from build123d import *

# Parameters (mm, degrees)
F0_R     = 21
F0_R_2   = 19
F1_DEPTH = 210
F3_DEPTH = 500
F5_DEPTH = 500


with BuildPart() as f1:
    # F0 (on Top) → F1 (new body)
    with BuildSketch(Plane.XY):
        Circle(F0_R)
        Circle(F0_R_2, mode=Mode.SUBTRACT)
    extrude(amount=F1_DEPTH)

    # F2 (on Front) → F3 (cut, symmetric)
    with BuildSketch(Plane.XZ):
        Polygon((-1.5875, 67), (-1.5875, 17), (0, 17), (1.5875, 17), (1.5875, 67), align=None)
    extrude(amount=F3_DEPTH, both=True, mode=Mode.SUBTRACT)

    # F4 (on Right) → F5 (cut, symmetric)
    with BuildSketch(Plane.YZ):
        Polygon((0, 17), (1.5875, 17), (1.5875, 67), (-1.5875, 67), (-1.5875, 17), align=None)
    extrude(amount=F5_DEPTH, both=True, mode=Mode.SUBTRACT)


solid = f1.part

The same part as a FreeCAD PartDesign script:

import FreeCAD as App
import Part
import Sketcher

doc = App.newDocument("Part")
body = doc.addObject("PartDesign::Body", "Body")

# Sketch on XY plane
sketch1 = body.newObject("Sketcher::SketchObject", "Sketch")
sketch1.AttachmentSupport = (doc.getObject("XY_Plane"), [""])
sketch1.MapMode = "FlatFace"
sketch1.addGeometry(Part.Circle(App.Vector(0, 0, 0), App.Vector(0, 0, 1), 21), False)
sketch1.addGeometry(Part.Circle(App.Vector(0, 0, 0), App.Vector(0, 0, 1), 19), False)
sketch1.addConstraint(Sketcher.Constraint("Coincident", 0, 3, -1, 1))
sketch1.addConstraint(Sketcher.Constraint("Coincident", 1, 3, -1, 1))
sketch1.addConstraint(Sketcher.Constraint("Diameter", 0, 42.0))
sketch1.addConstraint(Sketcher.Constraint("Diameter", 1, 38.0))
pad1 = body.newObject("PartDesign::Pad", "Pad")
pad1.Profile = sketch1
pad1.Length = 210

# Sketch on XZ plane
sketch2 = body.newObject("Sketcher::SketchObject", "Sketch001")
sketch2.AttachmentSupport = (doc.getObject("XZ_Plane"), [""])
sketch2.MapMode = "FlatFace"
sketch2.addGeometry(Part.LineSegment(App.Vector(-1.6, 67, 0), App.Vector(-1.6, 17, 0)), False)
sketch2.addGeometry(Part.LineSegment(App.Vector(-1.6, 17, 0), App.Vector(1.6, 17, 0)), False)
sketch2.addGeometry(Part.LineSegment(App.Vector(1.6, 17, 0), App.Vector(1.6, 67, 0)), False)
sketch2.addGeometry(Part.LineSegment(App.Vector(1.6, 67, 0), App.Vector(-1.6, 67, 0)), False)
sketch2.addConstraint(Sketcher.Constraint("Coincident", 0, 2, 1, 1))
sketch2.addConstraint(Sketcher.Constraint("Coincident", 1, 2, 2, 1))
sketch2.addConstraint(Sketcher.Constraint("Coincident", 2, 2, 3, 1))
sketch2.addConstraint(Sketcher.Constraint("Coincident", 3, 2, 0, 1))
sketch2.addConstraint(Sketcher.Constraint("Vertical", 0))
sketch2.addConstraint(Sketcher.Constraint("Horizontal", 1))
sketch2.addConstraint(Sketcher.Constraint("Vertical", 2))
sketch2.addConstraint(Sketcher.Constraint("Horizontal", 3))
sketch2.addConstraint(Sketcher.Constraint("DistanceY", 0, 2, 0, 1, 50.0))
sketch2.addConstraint(Sketcher.Constraint("DistanceY", -1, 1, 0, 2, 17.0))
sketch2.addConstraint(Sketcher.Constraint("DistanceX", 1, 1, 1, 2, 3.175))
sketch2.addConstraint(Sketcher.Constraint("DistanceX", 0, 2, -1, 1, 1.5875))
pocket1 = body.newObject("PartDesign::Pocket", "Pocket")
pocket1.Profile = sketch2
pocket1.Length = 1000
pocket1.Midplane = True

# Sketch on YZ plane
sketch3 = body.newObject("Sketcher::SketchObject", "Sketch002")
sketch3.AttachmentSupport = (doc.getObject("YZ_Plane"), [""])
sketch3.MapMode = "FlatFace"
sketch3.addGeometry(Part.LineSegment(App.Vector(1.6, 17, 0), App.Vector(1.6, 67, 0)), False)
sketch3.addGeometry(Part.LineSegment(App.Vector(1.6, 67, 0), App.Vector(-1.6, 67, 0)), False)
sketch3.addGeometry(Part.LineSegment(App.Vector(-1.6, 67, 0), App.Vector(-1.6, 17, 0)), False)
sketch3.addGeometry(Part.LineSegment(App.Vector(-1.6, 17, 0), App.Vector(1.6, 17, 0)), False)
sketch3.addConstraint(Sketcher.Constraint("Coincident", 0, 2, 1, 1))
sketch3.addConstraint(Sketcher.Constraint("Coincident", 1, 2, 2, 1))
sketch3.addConstraint(Sketcher.Constraint("Coincident", 2, 2, 3, 1))
sketch3.addConstraint(Sketcher.Constraint("Coincident", 3, 2, 0, 1))
sketch3.addConstraint(Sketcher.Constraint("Vertical", 0))
sketch3.addConstraint(Sketcher.Constraint("Horizontal", 1))
sketch3.addConstraint(Sketcher.Constraint("Vertical", 2))
sketch3.addConstraint(Sketcher.Constraint("Horizontal", 3))
sketch3.addConstraint(Sketcher.Constraint("DistanceY", 0, 1, 0, 2, 50.0))
sketch3.addConstraint(Sketcher.Constraint("DistanceY", -1, 1, 0, 2, 67.0))
sketch3.addConstraint(Sketcher.Constraint("DistanceX", 1, 2, 1, 1, 3.175))
sketch3.addConstraint(Sketcher.Constraint("DistanceX", -1, 1, 0, 2, 1.5875))
pocket2 = body.newObject("PartDesign::Pocket", "Pocket001")
pocket2.Profile = sketch3
pocket2.Length = 1000
pocket2.Midplane = True

doc.recompute()
